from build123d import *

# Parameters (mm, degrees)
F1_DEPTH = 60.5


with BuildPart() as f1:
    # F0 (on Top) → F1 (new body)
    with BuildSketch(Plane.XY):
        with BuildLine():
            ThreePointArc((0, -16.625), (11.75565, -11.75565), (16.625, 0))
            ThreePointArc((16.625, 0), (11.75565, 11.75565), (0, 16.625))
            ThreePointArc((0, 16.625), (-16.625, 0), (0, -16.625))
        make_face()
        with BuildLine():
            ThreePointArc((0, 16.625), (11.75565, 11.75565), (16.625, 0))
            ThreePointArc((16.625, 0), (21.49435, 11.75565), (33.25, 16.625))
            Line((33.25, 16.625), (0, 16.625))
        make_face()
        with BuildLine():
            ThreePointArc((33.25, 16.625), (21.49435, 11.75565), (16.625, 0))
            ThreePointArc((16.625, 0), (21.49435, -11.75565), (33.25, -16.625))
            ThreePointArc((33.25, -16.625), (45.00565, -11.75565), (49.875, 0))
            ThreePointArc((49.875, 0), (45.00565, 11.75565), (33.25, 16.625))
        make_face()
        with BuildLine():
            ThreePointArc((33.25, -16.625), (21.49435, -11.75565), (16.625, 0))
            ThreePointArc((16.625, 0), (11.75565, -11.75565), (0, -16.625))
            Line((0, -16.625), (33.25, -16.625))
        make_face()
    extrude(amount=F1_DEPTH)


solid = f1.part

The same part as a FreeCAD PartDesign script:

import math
import FreeCAD as App
import Part
import Sketcher

V = App.Vector
Q = App.Units.Quantity

doc = App.newDocument("Part")
body = doc.addObject("PartDesign::Body", "Body")

# Sketch on XY plane
sketch1 = doc.addObject("Sketcher::SketchObject", "Sketch")
body.addObject(sketch1)
sketch1.AttachmentSupport = (doc.XY_Plane, [""])
sketch1.MapMode = "FlatFace"
sketch1.addGeometry([
    Part.ArcOfCircle(Part.Circle(V(33, 0, 0), V(0, 0, 1), 17), math.radians(-90), math.radians(0)),  # 0
    Part.ArcOfCircle(Part.Circle(V(33, 0, 0), V(0, 0, 1), 17), math.radians(0), math.radians(90)),  # 1
    Part.LineSegment(V(33, 17, 0), V(0, 17, 0)),  # 2
    Part.ArcOfCircle(Part.Circle(V(0, 0, 0), V(0, 0, 1), 17), math.radians(90), math.radians(270)),  # 3
    Part.LineSegment(V(0, -17, 0), V(33, -17, 0)),  # 4
], False)
sketch1.addConstraint([
    Sketcher.Constraint("Tangent", 0, 2, 1, 1),
    Sketcher.Constraint("Tangent", 1, 2, 2, 1),
    Sketcher.Constraint("Tangent", 2, 2, 3, 1),
    Sketcher.Constraint("Tangent", 3, 2, 4, 1),
    Sketcher.Constraint("Tangent", 4, 2, 0, 1),
    Sketcher.Constraint("Horizontal", 2),
    Sketcher.Constraint("Horizontal", 4),
    Sketcher.Constraint("Coincident", 3, 3, -1, 1),
    Sketcher.Constraint("Equal", 0, 1),
    Sketcher.Constraint("PointOnObject", 0, 2, -1),
    Sketcher.Constraint("Radius", 0, Q("16.625001 mm")),
    Sketcher.Constraint("DistanceX", 2, 2, 2, 1, Q("33.25 mm")),
])
pad1 = doc.addObject("PartDesign::Pad", "Pad")
body.addObject(pad1)
pad1.Profile = sketch1
pad1.Length = 60.5

doc.recompute()
